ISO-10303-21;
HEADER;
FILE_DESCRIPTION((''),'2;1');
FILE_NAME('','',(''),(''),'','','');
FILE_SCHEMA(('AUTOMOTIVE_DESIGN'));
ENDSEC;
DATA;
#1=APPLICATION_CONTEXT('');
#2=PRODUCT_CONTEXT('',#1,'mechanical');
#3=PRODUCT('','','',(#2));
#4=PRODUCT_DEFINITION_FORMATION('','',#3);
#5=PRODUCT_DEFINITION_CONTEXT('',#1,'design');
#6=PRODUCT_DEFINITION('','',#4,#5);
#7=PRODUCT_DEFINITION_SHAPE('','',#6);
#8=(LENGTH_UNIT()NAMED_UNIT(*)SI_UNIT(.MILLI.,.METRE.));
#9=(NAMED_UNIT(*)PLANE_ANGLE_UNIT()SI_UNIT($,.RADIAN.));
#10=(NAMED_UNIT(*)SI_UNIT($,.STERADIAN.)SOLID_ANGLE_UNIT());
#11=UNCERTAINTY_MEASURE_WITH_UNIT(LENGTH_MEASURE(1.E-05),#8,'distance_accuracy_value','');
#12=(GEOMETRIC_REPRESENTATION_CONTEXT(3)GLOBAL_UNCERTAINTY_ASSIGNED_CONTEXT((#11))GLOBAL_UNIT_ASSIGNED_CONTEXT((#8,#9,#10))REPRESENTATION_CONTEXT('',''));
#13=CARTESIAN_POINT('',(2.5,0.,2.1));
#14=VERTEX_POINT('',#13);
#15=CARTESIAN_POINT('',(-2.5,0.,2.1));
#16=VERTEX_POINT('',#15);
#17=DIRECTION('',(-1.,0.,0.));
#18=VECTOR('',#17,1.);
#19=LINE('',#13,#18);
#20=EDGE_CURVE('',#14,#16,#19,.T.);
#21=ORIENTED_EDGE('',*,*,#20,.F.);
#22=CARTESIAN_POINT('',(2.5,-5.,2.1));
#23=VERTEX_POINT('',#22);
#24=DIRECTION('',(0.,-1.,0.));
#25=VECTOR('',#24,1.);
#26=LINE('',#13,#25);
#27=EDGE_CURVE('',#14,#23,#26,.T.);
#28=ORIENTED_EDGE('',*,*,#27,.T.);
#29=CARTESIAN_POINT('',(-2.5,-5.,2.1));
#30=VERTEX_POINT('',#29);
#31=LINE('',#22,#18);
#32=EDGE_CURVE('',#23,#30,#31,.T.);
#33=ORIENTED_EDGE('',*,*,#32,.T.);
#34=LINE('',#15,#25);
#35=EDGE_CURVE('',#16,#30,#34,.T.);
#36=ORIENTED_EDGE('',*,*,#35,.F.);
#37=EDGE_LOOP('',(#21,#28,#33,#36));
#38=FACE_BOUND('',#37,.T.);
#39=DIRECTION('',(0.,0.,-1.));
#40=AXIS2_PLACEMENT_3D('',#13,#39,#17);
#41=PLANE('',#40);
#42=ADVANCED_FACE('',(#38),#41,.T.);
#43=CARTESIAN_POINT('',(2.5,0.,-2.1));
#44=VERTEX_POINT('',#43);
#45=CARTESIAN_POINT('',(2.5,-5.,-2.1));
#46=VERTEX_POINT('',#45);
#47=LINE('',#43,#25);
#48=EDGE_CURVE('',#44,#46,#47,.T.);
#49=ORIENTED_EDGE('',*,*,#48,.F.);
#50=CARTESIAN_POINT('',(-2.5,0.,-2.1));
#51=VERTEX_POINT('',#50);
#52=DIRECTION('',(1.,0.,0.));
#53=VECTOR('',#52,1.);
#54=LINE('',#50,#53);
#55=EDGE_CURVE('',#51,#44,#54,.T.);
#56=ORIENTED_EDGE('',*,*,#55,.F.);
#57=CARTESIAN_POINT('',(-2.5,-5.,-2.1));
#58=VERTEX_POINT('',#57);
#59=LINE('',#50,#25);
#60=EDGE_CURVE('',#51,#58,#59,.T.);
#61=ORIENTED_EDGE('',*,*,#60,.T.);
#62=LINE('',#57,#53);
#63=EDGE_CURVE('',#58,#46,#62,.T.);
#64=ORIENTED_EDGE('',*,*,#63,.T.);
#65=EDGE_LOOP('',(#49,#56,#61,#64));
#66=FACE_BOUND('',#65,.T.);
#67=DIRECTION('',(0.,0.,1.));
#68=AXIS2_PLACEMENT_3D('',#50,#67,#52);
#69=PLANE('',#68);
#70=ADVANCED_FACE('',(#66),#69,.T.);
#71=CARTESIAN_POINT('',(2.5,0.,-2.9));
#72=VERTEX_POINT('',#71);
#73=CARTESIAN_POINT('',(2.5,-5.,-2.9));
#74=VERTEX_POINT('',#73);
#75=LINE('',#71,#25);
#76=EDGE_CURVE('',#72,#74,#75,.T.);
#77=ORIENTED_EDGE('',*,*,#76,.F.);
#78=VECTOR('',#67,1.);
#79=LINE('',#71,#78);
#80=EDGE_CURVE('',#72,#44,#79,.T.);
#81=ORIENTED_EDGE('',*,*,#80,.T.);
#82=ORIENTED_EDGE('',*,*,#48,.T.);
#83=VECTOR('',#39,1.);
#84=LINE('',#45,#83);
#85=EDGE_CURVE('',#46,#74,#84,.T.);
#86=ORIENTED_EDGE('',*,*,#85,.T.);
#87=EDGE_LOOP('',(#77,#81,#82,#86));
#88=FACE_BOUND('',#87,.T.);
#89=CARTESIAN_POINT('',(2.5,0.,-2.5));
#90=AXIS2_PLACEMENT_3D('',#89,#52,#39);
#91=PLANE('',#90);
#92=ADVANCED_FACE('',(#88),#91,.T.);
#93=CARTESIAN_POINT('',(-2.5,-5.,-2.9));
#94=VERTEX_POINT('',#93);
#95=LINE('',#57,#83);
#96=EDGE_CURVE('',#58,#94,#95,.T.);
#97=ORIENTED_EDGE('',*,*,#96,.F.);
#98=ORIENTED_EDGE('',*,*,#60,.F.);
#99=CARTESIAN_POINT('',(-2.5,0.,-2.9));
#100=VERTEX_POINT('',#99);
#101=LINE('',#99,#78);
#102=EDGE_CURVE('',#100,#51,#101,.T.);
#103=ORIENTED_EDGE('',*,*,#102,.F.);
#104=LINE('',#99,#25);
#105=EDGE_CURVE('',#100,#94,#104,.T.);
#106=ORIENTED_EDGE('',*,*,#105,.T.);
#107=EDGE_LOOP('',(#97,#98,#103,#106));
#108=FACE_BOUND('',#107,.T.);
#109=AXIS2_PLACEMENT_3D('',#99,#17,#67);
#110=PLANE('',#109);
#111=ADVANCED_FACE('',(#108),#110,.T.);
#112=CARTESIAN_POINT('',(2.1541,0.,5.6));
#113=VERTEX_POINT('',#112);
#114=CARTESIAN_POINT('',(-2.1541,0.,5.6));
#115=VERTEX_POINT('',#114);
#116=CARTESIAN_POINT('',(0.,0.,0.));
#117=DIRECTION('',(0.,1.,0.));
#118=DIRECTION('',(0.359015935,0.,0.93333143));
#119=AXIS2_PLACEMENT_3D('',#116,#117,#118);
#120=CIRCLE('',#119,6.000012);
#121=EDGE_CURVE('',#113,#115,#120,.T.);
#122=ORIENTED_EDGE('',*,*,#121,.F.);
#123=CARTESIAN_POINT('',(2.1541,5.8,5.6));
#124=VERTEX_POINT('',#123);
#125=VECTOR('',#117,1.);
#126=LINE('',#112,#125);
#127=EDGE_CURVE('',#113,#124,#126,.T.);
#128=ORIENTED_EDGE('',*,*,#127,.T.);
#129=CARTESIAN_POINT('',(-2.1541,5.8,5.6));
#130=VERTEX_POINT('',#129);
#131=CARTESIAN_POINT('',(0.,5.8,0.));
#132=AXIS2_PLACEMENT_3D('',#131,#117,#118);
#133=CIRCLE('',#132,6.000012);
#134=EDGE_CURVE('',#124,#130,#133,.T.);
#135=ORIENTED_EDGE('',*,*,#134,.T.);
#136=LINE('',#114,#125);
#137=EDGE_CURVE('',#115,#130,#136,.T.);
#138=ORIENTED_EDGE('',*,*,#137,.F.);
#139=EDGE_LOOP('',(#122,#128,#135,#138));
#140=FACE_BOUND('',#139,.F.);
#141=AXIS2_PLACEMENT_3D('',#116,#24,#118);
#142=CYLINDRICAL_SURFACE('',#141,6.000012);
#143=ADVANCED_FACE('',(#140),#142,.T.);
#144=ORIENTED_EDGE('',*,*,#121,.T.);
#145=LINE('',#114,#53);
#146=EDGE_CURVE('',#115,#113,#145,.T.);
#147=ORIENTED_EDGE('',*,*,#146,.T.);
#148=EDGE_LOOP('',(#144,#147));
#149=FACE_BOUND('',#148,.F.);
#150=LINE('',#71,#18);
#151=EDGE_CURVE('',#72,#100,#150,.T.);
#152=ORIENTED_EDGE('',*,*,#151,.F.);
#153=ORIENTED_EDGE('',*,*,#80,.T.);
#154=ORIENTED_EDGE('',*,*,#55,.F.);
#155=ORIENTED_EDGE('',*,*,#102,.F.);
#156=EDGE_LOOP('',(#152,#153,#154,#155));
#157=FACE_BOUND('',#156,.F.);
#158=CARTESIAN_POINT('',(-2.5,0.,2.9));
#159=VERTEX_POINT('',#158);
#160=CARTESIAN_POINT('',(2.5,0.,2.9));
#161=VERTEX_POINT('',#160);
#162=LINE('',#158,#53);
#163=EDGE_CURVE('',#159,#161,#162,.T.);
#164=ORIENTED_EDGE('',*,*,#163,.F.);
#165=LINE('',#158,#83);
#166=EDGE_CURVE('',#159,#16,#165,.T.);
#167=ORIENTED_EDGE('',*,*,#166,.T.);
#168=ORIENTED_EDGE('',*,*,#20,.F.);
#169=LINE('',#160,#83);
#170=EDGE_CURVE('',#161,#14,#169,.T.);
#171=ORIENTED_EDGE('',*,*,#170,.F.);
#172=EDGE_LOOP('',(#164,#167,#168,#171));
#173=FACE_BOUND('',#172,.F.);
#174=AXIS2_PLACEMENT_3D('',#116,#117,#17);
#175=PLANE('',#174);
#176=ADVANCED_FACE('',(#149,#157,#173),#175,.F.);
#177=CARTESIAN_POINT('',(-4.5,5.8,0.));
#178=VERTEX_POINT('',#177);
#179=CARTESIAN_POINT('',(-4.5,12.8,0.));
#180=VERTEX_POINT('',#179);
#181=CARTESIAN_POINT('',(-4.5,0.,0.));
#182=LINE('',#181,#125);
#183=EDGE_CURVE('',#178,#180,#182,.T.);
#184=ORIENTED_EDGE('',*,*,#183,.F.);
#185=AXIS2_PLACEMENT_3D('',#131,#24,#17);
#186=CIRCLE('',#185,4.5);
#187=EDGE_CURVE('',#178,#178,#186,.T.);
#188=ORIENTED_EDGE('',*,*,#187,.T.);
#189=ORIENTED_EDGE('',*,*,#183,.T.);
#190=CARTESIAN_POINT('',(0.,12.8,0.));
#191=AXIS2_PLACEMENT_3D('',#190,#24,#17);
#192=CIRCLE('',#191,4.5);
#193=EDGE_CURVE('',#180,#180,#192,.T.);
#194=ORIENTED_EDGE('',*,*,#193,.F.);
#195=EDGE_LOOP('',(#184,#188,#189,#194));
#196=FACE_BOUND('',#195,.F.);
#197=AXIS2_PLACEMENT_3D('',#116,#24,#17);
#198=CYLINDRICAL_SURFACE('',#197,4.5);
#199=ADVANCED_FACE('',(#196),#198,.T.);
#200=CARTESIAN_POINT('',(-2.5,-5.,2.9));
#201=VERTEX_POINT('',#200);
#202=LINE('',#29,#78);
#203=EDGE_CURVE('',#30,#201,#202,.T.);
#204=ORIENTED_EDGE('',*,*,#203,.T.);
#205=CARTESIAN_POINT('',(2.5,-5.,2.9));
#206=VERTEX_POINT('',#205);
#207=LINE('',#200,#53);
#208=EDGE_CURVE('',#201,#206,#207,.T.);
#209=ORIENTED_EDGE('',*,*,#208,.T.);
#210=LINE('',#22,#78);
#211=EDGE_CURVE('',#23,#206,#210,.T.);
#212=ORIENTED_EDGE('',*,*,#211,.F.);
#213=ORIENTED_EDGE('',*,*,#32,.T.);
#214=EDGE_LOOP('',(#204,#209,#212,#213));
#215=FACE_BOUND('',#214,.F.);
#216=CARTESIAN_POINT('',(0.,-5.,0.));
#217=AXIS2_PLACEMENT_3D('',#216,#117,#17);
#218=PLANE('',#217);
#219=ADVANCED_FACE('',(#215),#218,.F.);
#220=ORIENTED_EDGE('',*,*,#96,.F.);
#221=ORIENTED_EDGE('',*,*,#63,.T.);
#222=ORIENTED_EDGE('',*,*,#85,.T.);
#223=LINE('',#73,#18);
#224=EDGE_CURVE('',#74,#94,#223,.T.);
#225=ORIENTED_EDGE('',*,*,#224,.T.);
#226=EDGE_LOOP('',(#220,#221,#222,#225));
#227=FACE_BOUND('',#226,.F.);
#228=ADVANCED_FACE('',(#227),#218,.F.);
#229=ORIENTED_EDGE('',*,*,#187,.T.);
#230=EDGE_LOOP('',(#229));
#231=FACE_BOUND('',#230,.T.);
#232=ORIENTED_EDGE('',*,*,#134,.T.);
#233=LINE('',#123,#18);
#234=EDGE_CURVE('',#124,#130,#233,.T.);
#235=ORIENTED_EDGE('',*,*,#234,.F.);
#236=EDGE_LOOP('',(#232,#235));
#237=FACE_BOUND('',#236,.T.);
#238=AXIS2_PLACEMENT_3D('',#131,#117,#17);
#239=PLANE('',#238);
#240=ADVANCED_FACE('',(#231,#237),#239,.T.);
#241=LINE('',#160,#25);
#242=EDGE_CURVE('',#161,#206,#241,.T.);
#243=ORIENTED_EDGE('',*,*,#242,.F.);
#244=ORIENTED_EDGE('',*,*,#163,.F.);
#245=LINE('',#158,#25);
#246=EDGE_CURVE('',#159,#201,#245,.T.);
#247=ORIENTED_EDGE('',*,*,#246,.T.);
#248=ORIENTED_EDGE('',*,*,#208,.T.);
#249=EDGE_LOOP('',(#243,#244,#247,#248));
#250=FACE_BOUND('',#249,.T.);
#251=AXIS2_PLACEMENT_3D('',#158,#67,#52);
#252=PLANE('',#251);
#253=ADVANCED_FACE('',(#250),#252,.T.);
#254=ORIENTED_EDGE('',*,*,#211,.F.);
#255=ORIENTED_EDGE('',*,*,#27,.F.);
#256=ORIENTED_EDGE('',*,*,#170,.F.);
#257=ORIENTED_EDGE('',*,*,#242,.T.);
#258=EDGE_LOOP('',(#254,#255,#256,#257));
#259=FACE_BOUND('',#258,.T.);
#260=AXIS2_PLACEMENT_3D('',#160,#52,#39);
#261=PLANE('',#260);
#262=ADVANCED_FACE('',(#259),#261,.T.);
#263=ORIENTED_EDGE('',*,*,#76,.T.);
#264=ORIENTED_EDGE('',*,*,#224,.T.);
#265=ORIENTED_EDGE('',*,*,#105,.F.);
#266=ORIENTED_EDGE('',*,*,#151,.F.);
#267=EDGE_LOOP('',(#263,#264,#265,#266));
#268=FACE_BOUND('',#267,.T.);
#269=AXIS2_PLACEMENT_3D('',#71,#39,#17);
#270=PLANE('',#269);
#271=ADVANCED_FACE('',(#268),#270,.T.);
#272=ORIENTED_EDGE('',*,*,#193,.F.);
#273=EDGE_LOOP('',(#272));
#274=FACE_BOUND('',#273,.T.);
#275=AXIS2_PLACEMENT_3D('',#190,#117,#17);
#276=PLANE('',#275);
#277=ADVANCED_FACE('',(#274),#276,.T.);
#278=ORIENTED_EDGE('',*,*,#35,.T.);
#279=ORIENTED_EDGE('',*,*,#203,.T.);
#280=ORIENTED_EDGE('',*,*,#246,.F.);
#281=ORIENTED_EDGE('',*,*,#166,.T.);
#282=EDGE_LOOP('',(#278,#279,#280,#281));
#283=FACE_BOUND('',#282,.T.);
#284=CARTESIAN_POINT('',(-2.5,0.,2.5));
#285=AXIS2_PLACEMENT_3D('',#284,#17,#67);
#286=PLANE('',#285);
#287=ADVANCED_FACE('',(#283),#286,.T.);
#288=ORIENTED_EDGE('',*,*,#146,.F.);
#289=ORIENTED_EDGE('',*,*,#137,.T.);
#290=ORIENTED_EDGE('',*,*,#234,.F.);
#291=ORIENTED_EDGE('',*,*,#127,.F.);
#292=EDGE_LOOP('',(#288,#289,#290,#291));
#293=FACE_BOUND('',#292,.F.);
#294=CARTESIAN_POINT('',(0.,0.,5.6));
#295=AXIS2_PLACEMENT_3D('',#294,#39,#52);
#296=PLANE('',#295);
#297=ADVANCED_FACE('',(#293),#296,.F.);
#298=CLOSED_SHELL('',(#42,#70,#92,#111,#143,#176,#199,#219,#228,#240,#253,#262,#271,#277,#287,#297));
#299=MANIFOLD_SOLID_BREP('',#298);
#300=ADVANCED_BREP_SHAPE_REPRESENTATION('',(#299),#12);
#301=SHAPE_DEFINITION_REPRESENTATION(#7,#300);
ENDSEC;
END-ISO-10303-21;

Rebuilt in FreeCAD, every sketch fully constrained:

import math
import FreeCAD as App
import Part
import Sketcher

V = App.Vector


def add_polygon(sketch, points):
    """Adds a closed chain of lines whose ends are joined by coincident constraints."""
    first, n = sketch.GeometryCount, len(points)
    for a, b in zip(points, points[1:] + points[:1]):
        sketch.addGeometry(Part.LineSegment(App.Vector(*a, 0), App.Vector(*b, 0)), False)
    for i in range(n):
        sketch.addConstraint(Sketcher.Constraint("Coincident", first + i, 2, first + (i + 1) % n, 1))

doc = App.newDocument("Part")
body = doc.addObject("PartDesign::Body", "Body")

sketch1 = doc.addObject("Sketcher::SketchObject", "Sketch")
body.addObject(sketch1)
sketch1.AttachmentSupport = (doc.XZ_Plane, [""])
sketch1.MapMode = "FlatFace"
sketch1.addGeometry([
    Part.LineSegment(V(-2.2, 5.6, 0), V(2.2, 5.6, 0)),
    Part.ArcOfCircle(Part.Circle(V(0, 0, 0), V(0, 0, 1), 6), math.radians(111), math.radians(429)),
    Part.Circle(V(0, 0, 0), V(0, 0, 1), 4.5),
], False)
sketch1.addConstraint([
    Sketcher.Constraint("Coincident", 0, 1, 1, 1),
    Sketcher.Constraint("Coincident", 1, 2, 0, 2),
    Sketcher.Constraint("Horizontal", 0),
    Sketcher.Constraint("Coincident", 1, 3, -1, 1),
    Sketcher.Constraint("Coincident", 2, 3, -1, 1),
    Sketcher.Constraint("Diameter", 2, 9.0),
    Sketcher.Constraint("Radius", 1, 6.0),
    Sketcher.Constraint("DistanceX", 0, 1, 0, 2, 4.3082),
])
pad1 = doc.addObject("PartDesign::Pad", "Pad")
body.addObject(pad1)
pad1.Profile = sketch1
pad1.Length = 5.8
pad1.Reversed = True

sketch2 = doc.addObject("Sketcher::SketchObject", "Sketch001")
body.addObject(sketch2)
sketch2.AttachmentSupport = (doc.XZ_Plane, [""])
sketch2.MapMode = "FlatFace"
sketch2.addGeometry(Part.Circle(V(0, 0, 0), V(0, 0, 1), 4.5), False)
sketch2.addConstraint([
    Sketcher.Constraint("Coincident", 0, 3, -1, 1),
    Sketcher.Constraint("Diameter", 0, 9.0),
])
pad2 = doc.addObject("PartDesign::Pad", "Pad001")
body.addObject(pad2)
pad2.Profile = sketch2
pad2.Length = 12.8
pad2.Reversed = True

sketch3 = doc.addObject("Sketcher::SketchObject", "Sketch002")
body.addObject(sketch3)
sketch3.AttachmentSupport = (doc.XZ_Plane, [""])
sketch3.MapMode = "FlatFace"
add_polygon(sketch3, [(-2.5, 2.9), (2.5, 2.9), (2.5, 2.1), (-2.5, 2.1)])
add_polygon(sketch3, [(2.5, -2.9), (-2.5, -2.9), (-2.5, -2.1), (2.5, -2.1)])
sketch3.addConstraint([
    Sketcher.Constraint("Horizontal", 0),
    Sketcher.Constraint("Vertical", 1),
    Sketcher.Constraint("Horizontal", 2),
    Sketcher.Constraint("Vertical", 3),
    Sketcher.Constraint("Horizontal", 4),
    Sketcher.Constraint("Vertical", 5),
    Sketcher.Constraint("Horizontal", 6),
    Sketcher.Constraint("Vertical", 7),
    Sketcher.Constraint("Symmetric", 0, 2, 4, 2, -1, 1),
    Sketcher.Constraint("Symmetric", 2, 2, 6, 2, -1, 1),
    Sketcher.Constraint("Vertical", 3, 2, 4, 2),
    Sketcher.Constraint("DistanceX", 0, 1, 0, 2, 5.0),
    Sketcher.Constraint("DistanceY", 1, 2, 1, 1, 0.8),
    Sketcher.Constraint("DistanceY", 4, 2, 2, 2, 5.0),
])
pad3 = doc.addObject("PartDesign::Pad", "Pad002")
body.addObject(pad3)
pad3.Profile = sketch3
pad3.Length = 5

doc.recompute()
